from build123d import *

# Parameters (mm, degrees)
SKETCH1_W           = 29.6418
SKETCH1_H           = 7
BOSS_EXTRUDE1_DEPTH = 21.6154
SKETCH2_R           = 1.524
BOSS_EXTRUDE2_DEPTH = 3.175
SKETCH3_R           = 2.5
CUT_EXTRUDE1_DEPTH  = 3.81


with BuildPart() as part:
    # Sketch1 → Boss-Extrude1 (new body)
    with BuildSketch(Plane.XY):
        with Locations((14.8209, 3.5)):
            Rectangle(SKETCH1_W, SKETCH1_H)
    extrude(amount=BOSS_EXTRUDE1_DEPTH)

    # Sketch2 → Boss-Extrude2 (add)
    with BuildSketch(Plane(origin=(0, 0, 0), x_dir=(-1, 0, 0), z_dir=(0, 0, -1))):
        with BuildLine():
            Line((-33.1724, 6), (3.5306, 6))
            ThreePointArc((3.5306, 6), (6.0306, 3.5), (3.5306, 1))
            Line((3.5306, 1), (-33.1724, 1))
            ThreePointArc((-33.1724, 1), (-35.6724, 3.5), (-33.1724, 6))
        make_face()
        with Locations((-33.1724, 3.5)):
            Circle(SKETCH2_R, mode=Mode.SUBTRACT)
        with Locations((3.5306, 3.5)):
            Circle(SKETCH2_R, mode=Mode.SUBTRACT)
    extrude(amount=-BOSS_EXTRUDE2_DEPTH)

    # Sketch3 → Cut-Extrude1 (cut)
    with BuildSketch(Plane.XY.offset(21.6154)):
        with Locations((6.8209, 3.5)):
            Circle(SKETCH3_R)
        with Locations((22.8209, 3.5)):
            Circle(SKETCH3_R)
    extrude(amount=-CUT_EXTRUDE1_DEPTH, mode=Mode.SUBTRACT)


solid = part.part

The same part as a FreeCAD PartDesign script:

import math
import FreeCAD as App
import Part
import Sketcher
from FreeCAD import Vector
Q = App.Units.Quantity

doc = App.newDocument("Part")
body = doc.addObject("PartDesign::Body", "Body")

# Sketch on XY plane
sketch1 = body.newObject("Sketcher::SketchObject", "Sketch")
sketch1.AttachmentSupport = (doc.getObject("XY_Plane"), [""])
sketch1.MapMode = "FlatFace"
sketch1.addGeometry(Part.LineSegment(Vector(0, 7, 0), Vector(0, 0, 0)), False)
sketch1.addGeometry(Part.LineSegment(Vector(0, 0, 0), Vector(29.6418, 0, 0)), False)
sketch1.addGeometry(Part.LineSegment(Vector(29.6418, 0, 0), Vector(29.6418, 7, 0)), False)
sketch1.addGeometry(Part.LineSegment(Vector(29.6418, 7, 0), Vector(0, 7, 0)), False)
sketch1.addConstraint(Sketcher.Constraint("Coincident", 0, 2, 1, 1))
sketch1.addConstraint(Sketcher.Constraint("Coincident", 1, 2, 2, 1))
sketch1.addConstraint(Sketcher.Constraint("Coincident", 2, 2, 3, 1))
sketch1.addConstraint(Sketcher.Constraint("Coincident", 3, 2, 0, 1))
sketch1.addConstraint(Sketcher.Constraint("Vertical", 0))
sketch1.addConstraint(Sketcher.Constraint("Horizontal", 1))
sketch1.addConstraint(Sketcher.Constraint("Vertical", 2))
sketch1.addConstraint(Sketcher.Constraint("Horizontal", 3))
sketch1.addConstraint(Sketcher.Constraint("Coincident", 0, 2, -1, 1))
sketch1.addConstraint(Sketcher.Constraint("DistanceX", 1, 1, 1, 2, Q("1.167 in")))
sketch1.addConstraint(Sketcher.Constraint("DistanceY", 0, 2, 0, 1, 7.0))
pad1 = body.newObject("PartDesign::Pad", "Pad")
pad1.Profile = sketch1
pad1.Length = Q("0.851 in")

# Sketch on XY plane
sketch2 = body.newObject("Sketcher::SketchObject", "Sketch001")
sketch2.AttachmentSupport = (doc.getObject("XY_Plane"), [""])
sketch2.MapMode = "FlatFace"
sketch2.addGeometry(Part.LineSegment(Vector(-3.5306, 6, 0), Vector(33.1724, 6, 0)), False)
sketch2.addGeometry(Part.ArcOfCircle(Part.Circle(Vector(33.1724, 3.5, 0), Vector(0, 0, 1), 2.5), math.radians(-90), math.radians(90)), False)
sketch2.addGeometry(Part.LineSegment(Vector(33.1724, 1, 0), Vector(-3.5306, 1, 0)), False)
sketch2.addGeometry(Part.ArcOfCircle(Part.Circle(Vector(-3.5306, 3.5, 0), Vector(0, 0, 1), 2.5), math.radians(90), math.radians(270)), False)
sketch2.addGeometry(Part.Circle(Vector(-3.5306, 3.5, 0), Vector(0, 0, 1), 1.524), False)
sketch2.addGeometry(Part.Circle(Vector(33.1724, 3.5, 0), Vector(0, 0, 1), 1.524), False)
sketch2.addConstraint(Sketcher.Constraint("Tangent", 0, 2, 1, 2))
sketch2.addConstraint(Sketcher.Constraint("Tangent", 1, 1, 2, 1))
sketch2.addConstraint(Sketcher.Constraint("Tangent", 2, 2, 3, 2))
sketch2.addConstraint(Sketcher.Constraint("Tangent", 3, 1, 0, 1))
sketch2.addConstraint(Sketcher.Constraint("Horizontal", 0))
sketch2.addConstraint(Sketcher.Constraint("Horizontal", 2))
sketch2.addConstraint(Sketcher.Constraint("Coincident", 4, 3, 3, 3))
sketch2.addConstraint(Sketcher.Constraint("Coincident", 5, 3, 1, 3))
sketch2.addConstraint(Sketcher.Constraint("Equal", 4, 5))
sketch2.addConstraint(Sketcher.Constraint("Diameter", 4, Q("0.12 in")))
sketch2.addConstraint(Sketcher.Constraint("DistanceX", 0, 1, 0, 2, Q("1.445 in")))
sketch2.addConstraint(Sketcher.Constraint("Radius", 1, 2.5))
sketch2.addConstraint(Sketcher.Constraint("DistanceX", -1, 1, 1, 3, Q("1.306 in")))
sketch2.addConstraint(Sketcher.Constraint("DistanceY", -1, 1, 1, 3, 3.5))
pad2 = body.newObject("PartDesign::Pad", "Pad001")
pad2.Profile = sketch2
pad2.Length = Q("0.125 in")

# Sketch on XY plane
sketch3 = body.newObject("Sketcher::SketchObject", "Sketch002")
sketch3.AttachmentSupport = (doc.getObject("XY_Plane"), [""])
sketch3.MapMode = "FlatFace"
sketch3.AttachmentOffset = App.Placement(Vector(0, 0, 0.851 * 25.4), App.Rotation())
sketch3.addGeometry(Part.Circle(Vector(6.8209, 3.5, 0), Vector(0, 0, 1), 2.5), False)
sketch3.addGeometry(Part.Circle(Vector(22.8209, 3.5, 0), Vector(0, 0, 1), 2.5), False)
sketch3.addConstraint(Sketcher.Constraint("Equal", 0, 1))
sketch3.addConstraint(Sketcher.Constraint("Horizontal", 0, 3, 1, 3))
sketch3.addConstraint(Sketcher.Constraint("Diameter", 0, 5.0))
sketch3.addConstraint(Sketcher.Constraint("DistanceX", -1, 1, 0, 3, 6.8209))
sketch3.addConstraint(Sketcher.Constraint("DistanceY", -1, 1, 0, 3, 3.5))
sketch3.addConstraint(Sketcher.Constraint("DistanceX", -1, 1, 1, 3, 22.8209))
pocket1 = body.newObject("PartDesign::Pocket", "Pocket")
pocket1.Profile = sketch3
pocket1.Length = Q("0.15 in")

doc.recompute()
